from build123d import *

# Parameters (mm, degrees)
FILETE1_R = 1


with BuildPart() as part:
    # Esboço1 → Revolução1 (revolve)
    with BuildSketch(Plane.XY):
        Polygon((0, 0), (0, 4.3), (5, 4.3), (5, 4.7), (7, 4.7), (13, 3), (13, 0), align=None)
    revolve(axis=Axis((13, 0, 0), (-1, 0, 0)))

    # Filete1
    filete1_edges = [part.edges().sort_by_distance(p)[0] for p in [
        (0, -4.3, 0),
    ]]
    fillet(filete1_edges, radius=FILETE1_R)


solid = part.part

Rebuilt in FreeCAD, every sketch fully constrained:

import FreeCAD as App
import Part
import Sketcher
from FreeCAD import Vector


def edges_at(feature, points):
    """Names of the edges that pass closest to the given points."""
    edges = feature.Shape.Edges
    near = lambda p: min(range(len(edges)), key=lambda i: edges[i].distToShape(Part.Vertex(*p))[0])
    return sorted({f"Edge{near(p) + 1}" for p in points})


def add_polygon(sketch, points):
    """Adds a closed chain of lines whose ends are joined by coincident constraints."""
    first, n = sketch.GeometryCount, len(points)
    for a, b in zip(points, points[1:] + points[:1]):
        sketch.addGeometry(Part.LineSegment(App.Vector(*a, 0), App.Vector(*b, 0)), False)
    for i in range(n):
        sketch.addConstraint(Sketcher.Constraint("Coincident", first + i, 2, first + (i + 1) % n, 1))

doc = App.newDocument("Part")
params = doc.addObject("Spreadsheet::Sheet", "Params")
for row, (alias, value) in enumerate([
    ("sketch1_width", "13 mm"),
    ("sketch1_width2", "2 mm"),
    ("sketch1_width3", "5 mm"),
    ("sketch1_height", "3 mm"),
    ("sketch1_height2", "4.3 mm"),
    ("revolution_angle", "360 deg"),
    ("fillet_radius", "1 mm"),
], start=1):
    params.set(f"A{row}", alias)
    params.set(f"B{row}", "=" + value)
    params.setAlias(f"B{row}", alias)

body = doc.addObject("PartDesign::Body", "Body")

# Sketch on XY plane
sketch1 = doc.addObject("Sketcher::SketchObject", "Sketch")
body.addObject(sketch1)
sketch1.AttachmentSupport = (doc.XY_Plane, [""])
sketch1.MapMode = "FlatFace"
add_polygon(sketch1, [(0, 4.3), (0, 0), (13, 0), (13, 3), (7, 4.7), (5, 4.7), (5, 4.3)])  # lines 0-6
sketch1.addConstraint([
    Sketcher.Constraint("Vertical", 0),
    Sketcher.Constraint("Horizontal", 1),
    Sketcher.Constraint("Vertical", 2),
    Sketcher.Constraint("Horizontal", 4),
    Sketcher.Constraint("Vertical", 5),
    Sketcher.Constraint("Horizontal", 6),
    Sketcher.Constraint("Coincident", 0, 2, -1, 1),
    Sketcher.Constraint("DistanceX", 1, 1, 1, 2, 13.0),
    Sketcher.Constraint("DistanceX", 4, 2, 4, 1, 2.0),
    Sketcher.Constraint("DistanceX", 6, 2, 6, 1, 5.0),
    Sketcher.Constraint("DistanceY", 2, 1, 2, 2, 3.0),
    Sketcher.Constraint("DistanceY", 0, 2, 0, 1, 4.3),
    Sketcher.Constraint("DistanceY", 5, 2, 5, 1, 0.4),
])
sketch1.setExpression("Constraints[14]", "Params.sketch1_width")
sketch1.setExpression("Constraints[15]", "Params.sketch1_width2")
sketch1.setExpression("Constraints[16]", "Params.sketch1_width3")
sketch1.setExpression("Constraints[17]", "Params.sketch1_height")
sketch1.setExpression("Constraints[18]", "Params.sketch1_height2")
revolution = doc.addObject("PartDesign::Revolution", "Revolution")
body.addObject(revolution)
revolution.Profile = sketch1
revolution.ReferenceAxis = (sketch1, ["H_Axis"])
revolution.setExpression("Angle", "Params.revolution_angle")
doc.recompute()

fillet = doc.addObject("PartDesign::Fillet", "Fillet")
body.addObject(fillet)
fillet.Base = (revolution, edges_at(revolution, [(0, -4.3, 0)]))
fillet.setExpression("Radius", "Params.fillet_radius")

doc.recompute()
